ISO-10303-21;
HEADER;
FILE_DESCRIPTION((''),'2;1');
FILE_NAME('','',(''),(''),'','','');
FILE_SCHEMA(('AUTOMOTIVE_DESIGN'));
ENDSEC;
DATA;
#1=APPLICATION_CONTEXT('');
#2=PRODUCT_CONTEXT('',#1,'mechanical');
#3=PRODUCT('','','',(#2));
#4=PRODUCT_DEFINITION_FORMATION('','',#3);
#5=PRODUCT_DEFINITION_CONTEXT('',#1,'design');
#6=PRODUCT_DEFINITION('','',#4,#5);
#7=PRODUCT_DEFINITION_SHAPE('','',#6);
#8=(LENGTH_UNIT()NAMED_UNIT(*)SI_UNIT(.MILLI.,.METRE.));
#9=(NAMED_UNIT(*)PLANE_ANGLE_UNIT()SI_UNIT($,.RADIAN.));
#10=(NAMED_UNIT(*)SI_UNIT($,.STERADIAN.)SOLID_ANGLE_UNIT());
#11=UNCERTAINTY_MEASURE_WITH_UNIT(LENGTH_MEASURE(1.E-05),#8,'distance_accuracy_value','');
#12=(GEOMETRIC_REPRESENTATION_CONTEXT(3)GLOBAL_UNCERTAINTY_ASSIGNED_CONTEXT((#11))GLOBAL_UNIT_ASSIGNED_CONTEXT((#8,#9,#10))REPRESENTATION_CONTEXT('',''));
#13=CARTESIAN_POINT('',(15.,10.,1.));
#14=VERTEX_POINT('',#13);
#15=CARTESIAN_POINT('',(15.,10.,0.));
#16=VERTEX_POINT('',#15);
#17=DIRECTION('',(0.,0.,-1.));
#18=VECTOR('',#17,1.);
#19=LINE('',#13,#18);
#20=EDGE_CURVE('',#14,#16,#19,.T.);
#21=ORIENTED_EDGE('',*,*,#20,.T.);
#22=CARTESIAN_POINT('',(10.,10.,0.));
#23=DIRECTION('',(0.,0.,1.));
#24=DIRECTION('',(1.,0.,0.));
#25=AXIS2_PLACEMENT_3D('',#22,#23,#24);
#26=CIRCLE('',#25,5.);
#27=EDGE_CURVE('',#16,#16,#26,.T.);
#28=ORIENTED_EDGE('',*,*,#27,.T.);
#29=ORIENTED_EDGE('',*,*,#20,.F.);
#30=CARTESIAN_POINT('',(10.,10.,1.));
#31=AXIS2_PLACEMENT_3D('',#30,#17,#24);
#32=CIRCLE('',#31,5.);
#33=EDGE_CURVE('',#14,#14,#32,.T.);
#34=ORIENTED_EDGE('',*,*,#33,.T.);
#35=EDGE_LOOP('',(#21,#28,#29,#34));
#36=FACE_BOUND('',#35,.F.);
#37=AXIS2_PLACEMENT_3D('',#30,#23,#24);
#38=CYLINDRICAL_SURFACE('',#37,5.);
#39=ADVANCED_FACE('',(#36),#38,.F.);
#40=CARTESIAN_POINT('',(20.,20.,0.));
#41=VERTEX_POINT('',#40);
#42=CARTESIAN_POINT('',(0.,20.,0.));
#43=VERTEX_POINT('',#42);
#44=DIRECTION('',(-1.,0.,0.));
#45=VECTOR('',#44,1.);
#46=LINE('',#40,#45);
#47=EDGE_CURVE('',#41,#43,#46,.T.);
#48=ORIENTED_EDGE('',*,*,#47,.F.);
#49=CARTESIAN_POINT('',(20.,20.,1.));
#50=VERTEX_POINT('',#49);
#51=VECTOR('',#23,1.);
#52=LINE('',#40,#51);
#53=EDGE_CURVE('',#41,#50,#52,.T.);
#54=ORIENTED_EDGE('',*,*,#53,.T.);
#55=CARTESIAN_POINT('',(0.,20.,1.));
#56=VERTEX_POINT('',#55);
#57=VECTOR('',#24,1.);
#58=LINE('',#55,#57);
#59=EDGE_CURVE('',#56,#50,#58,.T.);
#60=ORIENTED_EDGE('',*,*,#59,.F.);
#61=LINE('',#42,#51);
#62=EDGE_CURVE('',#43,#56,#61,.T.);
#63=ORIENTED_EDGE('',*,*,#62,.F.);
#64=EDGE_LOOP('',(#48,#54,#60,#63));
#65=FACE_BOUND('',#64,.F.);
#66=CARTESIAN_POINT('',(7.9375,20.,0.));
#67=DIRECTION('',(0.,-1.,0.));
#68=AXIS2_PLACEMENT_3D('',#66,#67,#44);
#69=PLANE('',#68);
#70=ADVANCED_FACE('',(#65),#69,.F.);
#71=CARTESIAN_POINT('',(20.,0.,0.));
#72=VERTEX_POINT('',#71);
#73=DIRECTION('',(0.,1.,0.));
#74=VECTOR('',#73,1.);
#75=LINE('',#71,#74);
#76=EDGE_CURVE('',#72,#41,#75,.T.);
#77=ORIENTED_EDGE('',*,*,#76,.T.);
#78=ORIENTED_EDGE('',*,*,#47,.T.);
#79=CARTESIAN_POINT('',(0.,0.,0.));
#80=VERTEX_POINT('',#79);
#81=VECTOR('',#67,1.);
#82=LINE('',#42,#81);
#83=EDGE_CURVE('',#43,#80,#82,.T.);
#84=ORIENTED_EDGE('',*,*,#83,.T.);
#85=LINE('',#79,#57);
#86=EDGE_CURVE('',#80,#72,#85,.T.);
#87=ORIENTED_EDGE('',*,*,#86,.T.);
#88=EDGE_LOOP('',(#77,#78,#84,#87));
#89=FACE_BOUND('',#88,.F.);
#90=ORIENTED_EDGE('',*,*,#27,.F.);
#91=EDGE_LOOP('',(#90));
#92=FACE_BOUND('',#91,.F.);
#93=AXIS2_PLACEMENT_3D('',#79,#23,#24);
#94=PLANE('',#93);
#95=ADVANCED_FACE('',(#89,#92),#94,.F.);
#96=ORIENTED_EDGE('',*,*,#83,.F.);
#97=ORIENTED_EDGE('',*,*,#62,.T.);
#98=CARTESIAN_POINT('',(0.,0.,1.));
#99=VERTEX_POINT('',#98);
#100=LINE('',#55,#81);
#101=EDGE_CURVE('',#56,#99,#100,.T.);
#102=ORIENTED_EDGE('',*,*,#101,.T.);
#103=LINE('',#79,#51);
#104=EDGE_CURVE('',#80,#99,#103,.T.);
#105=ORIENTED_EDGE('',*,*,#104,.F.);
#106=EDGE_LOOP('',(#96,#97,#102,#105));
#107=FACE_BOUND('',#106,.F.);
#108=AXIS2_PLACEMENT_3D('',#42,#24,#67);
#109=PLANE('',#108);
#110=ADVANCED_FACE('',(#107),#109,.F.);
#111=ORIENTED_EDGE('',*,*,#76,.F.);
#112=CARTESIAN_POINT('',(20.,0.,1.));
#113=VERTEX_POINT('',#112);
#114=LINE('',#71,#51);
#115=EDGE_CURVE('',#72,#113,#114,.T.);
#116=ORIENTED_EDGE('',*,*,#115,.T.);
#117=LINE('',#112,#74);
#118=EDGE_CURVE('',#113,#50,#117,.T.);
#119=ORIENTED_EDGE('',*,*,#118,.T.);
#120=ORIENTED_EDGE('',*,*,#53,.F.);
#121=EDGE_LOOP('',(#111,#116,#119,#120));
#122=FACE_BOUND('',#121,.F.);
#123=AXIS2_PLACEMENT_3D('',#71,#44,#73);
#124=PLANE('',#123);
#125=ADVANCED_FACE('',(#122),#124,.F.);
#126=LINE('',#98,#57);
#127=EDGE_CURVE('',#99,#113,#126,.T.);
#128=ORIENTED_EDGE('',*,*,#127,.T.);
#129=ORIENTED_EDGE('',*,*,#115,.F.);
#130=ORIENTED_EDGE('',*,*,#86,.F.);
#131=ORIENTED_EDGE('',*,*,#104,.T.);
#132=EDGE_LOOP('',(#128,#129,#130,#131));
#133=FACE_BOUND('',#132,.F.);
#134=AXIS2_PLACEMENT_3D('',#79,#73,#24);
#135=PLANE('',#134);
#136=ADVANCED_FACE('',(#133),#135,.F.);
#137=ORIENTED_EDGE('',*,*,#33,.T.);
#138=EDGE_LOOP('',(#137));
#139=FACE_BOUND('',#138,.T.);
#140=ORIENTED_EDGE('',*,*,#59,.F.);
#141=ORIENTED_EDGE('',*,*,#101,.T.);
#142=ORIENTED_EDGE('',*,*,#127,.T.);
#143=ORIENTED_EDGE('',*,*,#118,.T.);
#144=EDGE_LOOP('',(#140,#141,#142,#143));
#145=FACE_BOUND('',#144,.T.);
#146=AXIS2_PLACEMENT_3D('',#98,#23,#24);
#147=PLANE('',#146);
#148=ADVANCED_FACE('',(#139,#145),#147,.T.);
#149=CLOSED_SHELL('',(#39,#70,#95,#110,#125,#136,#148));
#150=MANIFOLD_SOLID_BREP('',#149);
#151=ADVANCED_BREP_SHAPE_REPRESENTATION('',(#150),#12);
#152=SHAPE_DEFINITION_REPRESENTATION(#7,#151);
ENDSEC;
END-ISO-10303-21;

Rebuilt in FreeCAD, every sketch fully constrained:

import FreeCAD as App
import Part
import Sketcher

V = App.Vector

doc = App.newDocument("Part")
body = doc.addObject("PartDesign::Body", "Body")

# Sketch on XY plane
sketch1 = body.newObject("Sketcher::SketchObject", "Sketch")
sketch1.AttachmentSupport = (doc.getObject("XY_Plane"), [""])
sketch1.MapMode = "FlatFace"
sketch1.addGeometry(Part.LineSegment(V(0, 20, 0), V(0, 0, 0)), False)
sketch1.addGeometry(Part.LineSegment(V(0, 0, 0), V(20, 0, 0)), False)
sketch1.addGeometry(Part.LineSegment(V(20, 0, 0), V(20, 20, 0)), False)
sketch1.addGeometry(Part.LineSegment(V(20, 20, 0), V(0, 20, 0)), False)
sketch1.addConstraint(Sketcher.Constraint("Coincident", 0, 2, 1, 1))
sketch1.addConstraint(Sketcher.Constraint("Coincident", 1, 2, 2, 1))
sketch1.addConstraint(Sketcher.Constraint("Coincident", 2, 2, 3, 1))
sketch1.addConstraint(Sketcher.Constraint("Coincident", 3, 2, 0, 1))
sketch1.addConstraint(Sketcher.Constraint("Vertical", 0))
sketch1.addConstraint(Sketcher.Constraint("Horizontal", 1))
sketch1.addConstraint(Sketcher.Constraint("Vertical", 2))
sketch1.addConstraint(Sketcher.Constraint("Horizontal", 3))
sketch1.addConstraint(Sketcher.Constraint("Coincident", 0, 2, -1, 1))
sketch1.addConstraint(Sketcher.Constraint("Equal", 3, 0))
sketch1.addConstraint(Sketcher.Constraint("DistanceX", 1, 1, 1, 2, 20.0))
pad1 = body.newObject("PartDesign::Pad", "Pad")
pad1.Profile = sketch1
pad1.Length = 1

# Sketch on XY plane
sketch2 = body.newObject("Sketcher::SketchObject", "Sketch001")
sketch2.AttachmentSupport = (doc.getObject("XY_Plane"), [""])
sketch2.MapMode = "FlatFace"
sketch2.AttachmentOffset = App.Placement(V(0, 0, 1), App.Rotation())
sketch2.addGeometry(Part.Circle(V(10, 10, 0), V(0, 0, 1), 5), False)
sketch2.addConstraint(Sketcher.Constraint("Diameter", 0, 10.0))
sketch2.addConstraint(Sketcher.Constraint("DistanceX", -1, 1, 0, 3, 10.0))
sketch2.addConstraint(Sketcher.Constraint("DistanceY", -1, 1, 0, 3, 10.0))
pocket1 = body.newObject("PartDesign::Pocket", "Pocket")
pocket1.Profile = sketch2
pocket1.Length = 1

doc.recompute()
